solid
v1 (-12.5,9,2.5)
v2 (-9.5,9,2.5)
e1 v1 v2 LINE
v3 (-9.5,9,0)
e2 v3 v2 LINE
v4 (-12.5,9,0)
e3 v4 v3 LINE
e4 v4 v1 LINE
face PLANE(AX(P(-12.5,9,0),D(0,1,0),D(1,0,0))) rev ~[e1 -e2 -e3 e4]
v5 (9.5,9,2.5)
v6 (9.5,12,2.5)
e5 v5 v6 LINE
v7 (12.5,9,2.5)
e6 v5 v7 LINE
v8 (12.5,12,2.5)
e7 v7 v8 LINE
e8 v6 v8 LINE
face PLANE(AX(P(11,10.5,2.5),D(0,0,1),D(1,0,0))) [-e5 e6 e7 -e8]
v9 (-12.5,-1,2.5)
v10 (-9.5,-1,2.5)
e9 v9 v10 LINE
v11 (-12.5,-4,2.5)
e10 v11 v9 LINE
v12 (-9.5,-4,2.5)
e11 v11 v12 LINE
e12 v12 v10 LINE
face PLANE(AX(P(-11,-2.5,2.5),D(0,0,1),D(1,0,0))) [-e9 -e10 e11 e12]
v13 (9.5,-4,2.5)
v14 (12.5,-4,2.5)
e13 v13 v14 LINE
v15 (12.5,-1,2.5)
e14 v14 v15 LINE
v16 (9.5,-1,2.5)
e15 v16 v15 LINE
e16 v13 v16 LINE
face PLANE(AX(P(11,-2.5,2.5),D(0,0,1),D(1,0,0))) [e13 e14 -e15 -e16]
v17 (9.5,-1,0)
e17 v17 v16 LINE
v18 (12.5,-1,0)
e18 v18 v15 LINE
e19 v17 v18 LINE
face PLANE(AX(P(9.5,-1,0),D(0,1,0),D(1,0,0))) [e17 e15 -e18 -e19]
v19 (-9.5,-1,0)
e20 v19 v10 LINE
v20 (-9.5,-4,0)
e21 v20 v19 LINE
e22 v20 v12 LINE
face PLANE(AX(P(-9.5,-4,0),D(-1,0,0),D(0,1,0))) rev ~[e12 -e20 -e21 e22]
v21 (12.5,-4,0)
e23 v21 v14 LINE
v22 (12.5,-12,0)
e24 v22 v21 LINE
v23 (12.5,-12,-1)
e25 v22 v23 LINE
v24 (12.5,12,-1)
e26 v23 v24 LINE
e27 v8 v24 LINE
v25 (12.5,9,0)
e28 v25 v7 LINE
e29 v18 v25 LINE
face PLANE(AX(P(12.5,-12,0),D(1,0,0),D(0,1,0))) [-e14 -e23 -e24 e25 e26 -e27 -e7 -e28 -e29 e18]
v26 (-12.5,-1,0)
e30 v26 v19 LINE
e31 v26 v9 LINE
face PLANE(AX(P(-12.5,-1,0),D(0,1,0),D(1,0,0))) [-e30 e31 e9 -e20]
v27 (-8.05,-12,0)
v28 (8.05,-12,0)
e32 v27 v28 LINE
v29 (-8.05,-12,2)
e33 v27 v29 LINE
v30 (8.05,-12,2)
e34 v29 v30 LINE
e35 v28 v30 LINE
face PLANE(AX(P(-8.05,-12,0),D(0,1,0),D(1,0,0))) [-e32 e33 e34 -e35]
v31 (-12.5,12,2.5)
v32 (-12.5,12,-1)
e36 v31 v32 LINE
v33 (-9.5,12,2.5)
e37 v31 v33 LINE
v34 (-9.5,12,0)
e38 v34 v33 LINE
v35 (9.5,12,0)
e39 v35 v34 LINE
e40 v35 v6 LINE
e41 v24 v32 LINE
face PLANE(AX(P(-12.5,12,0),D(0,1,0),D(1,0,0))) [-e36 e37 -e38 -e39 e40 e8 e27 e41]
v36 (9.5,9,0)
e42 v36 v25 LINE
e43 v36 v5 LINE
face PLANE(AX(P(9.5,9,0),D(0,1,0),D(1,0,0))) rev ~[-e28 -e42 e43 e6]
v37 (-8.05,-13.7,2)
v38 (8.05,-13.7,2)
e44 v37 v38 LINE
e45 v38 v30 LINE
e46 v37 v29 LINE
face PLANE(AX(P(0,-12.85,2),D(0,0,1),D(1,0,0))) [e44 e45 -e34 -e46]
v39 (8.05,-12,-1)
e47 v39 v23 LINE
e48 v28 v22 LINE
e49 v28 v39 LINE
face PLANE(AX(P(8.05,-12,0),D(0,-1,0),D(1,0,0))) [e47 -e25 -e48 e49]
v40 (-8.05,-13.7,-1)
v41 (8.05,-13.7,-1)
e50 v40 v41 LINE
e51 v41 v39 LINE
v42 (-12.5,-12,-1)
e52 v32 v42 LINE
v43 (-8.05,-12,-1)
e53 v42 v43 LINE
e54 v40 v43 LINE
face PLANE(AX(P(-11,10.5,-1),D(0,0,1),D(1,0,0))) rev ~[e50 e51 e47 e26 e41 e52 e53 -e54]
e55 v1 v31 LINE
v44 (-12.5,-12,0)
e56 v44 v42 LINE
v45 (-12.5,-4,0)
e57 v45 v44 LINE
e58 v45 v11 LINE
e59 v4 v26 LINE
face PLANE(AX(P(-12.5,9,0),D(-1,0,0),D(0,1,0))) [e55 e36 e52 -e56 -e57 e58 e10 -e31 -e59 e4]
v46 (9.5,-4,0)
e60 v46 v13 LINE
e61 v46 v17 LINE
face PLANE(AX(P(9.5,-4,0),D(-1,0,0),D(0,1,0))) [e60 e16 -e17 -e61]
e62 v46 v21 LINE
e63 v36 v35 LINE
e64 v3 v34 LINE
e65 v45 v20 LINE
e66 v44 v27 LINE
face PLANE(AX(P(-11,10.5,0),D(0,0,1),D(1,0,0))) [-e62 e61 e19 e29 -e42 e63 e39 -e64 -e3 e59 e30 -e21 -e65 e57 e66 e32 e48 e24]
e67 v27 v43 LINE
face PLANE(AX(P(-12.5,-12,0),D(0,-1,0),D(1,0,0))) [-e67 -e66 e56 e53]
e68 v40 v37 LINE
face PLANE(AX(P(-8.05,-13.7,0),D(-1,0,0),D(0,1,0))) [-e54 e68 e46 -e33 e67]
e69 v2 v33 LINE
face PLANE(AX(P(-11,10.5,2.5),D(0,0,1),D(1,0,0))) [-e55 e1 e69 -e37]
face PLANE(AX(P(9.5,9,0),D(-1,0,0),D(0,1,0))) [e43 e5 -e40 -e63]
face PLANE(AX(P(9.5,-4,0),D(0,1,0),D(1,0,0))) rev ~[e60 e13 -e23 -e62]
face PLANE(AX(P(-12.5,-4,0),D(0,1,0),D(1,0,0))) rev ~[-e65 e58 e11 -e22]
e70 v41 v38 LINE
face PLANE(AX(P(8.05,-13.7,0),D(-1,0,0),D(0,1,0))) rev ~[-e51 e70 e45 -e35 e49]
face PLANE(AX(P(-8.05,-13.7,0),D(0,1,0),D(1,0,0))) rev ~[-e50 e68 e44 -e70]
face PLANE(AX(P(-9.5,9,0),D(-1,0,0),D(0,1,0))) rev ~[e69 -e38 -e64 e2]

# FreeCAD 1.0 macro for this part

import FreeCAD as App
import Part
import Sketcher

doc = App.newDocument("Part")
params = doc.addObject("Spreadsheet::Sheet", "Params")
for row, (alias, value) in enumerate([
    ("sketch1_width", "25 mm"),
    ("sketch1_height", "24 mm"),
    ("sketch1_width2", "16.1 mm"),
    ("sketch1_height2", "1.7 mm"),
    ("pad1_length", "1 mm"),
    ("sketch2_width", "3 mm"),
    ("pad2_length", "2.5 mm"),
    ("sketch3_width", "16.1 mm"),
    ("sketch3_height", "1.7 mm"),
    ("pad3_length", "2 mm"),
], start=1):
    params.set(f"A{row}", alias)
    params.set(f"B{row}", "=" + value)
    params.setAlias(f"B{row}", alias)

body = doc.addObject("PartDesign::Body", "Body")

sketch1 = body.newObject("Sketcher::SketchObject", "Sketch")
sketch1.AttachmentSupport = (doc.getObject("XY_Plane"), [""])
sketch1.MapMode = "FlatFace"
sketch1.addGeometry(Part.LineSegment(App.Vector(-12.5, 12, 0), App.Vector(-12.5, -12, 0)), False)
sketch1.addGeometry(Part.LineSegment(App.Vector(-12.5, -12, 0), App.Vector(-8.05, -12, 0)), False)
sketch1.addGeometry(Part.LineSegment(App.Vector(-8.05, -12, 0), App.Vector(-8.05, -13.7, 0)), False)
sketch1.addGeometry(Part.LineSegment(App.Vector(-8.05, -13.7, 0), App.Vector(8.05, -13.7, 0)), False)
sketch1.addGeometry(Part.LineSegment(App.Vector(8.05, -13.7, 0), App.Vector(8.05, -12, 0)), False)
sketch1.addGeometry(Part.LineSegment(App.Vector(8.05, -12, 0), App.Vector(12.5, -12, 0)), False)
sketch1.addGeometry(Part.LineSegment(App.Vector(12.5, -12, 0), App.Vector(12.5, 12, 0)), False)
sketch1.addGeometry(Part.LineSegment(App.Vector(12.5, 12, 0), App.Vector(-12.5, 12, 0)), False)
sketch1.addConstraint(Sketcher.Constraint("Coincident", 0, 2, 1, 1))
sketch1.addConstraint(Sketcher.Constraint("Coincident", 1, 2, 2, 1))
sketch1.addConstraint(Sketcher.Constraint("Coincident", 2, 2, 3, 1))
sketch1.addConstraint(Sketcher.Constraint("Coincident", 3, 2, 4, 1))
sketch1.addConstraint(Sketcher.Constraint("Coincident", 4, 2, 5, 1))
sketch1.addConstraint(Sketcher.Constraint("Coincident", 5, 2, 6, 1))
sketch1.addConstraint(Sketcher.Constraint("Coincident", 6, 2, 7, 1))
sketch1.addConstraint(Sketcher.Constraint("Coincident", 7, 2, 0, 1))
sketch1.addConstraint(Sketcher.Constraint("Vertical", 0))
sketch1.addConstraint(Sketcher.Constraint("Horizontal", 1))
sketch1.addConstraint(Sketcher.Constraint("Vertical", 2))
sketch1.addConstraint(Sketcher.Constraint("Horizontal", 3))
sketch1.addConstraint(Sketcher.Constraint("Vertical", 4))
sketch1.addConstraint(Sketcher.Constraint("Horizontal", 5))
sketch1.addConstraint(Sketcher.Constraint("Vertical", 6))
sketch1.addConstraint(Sketcher.Constraint("Horizontal", 7))
sketch1.addConstraint(Sketcher.Constraint("Symmetric", 0, 2, 6, 2, -1, 1))
sketch1.addConstraint(Sketcher.Constraint("Symmetric", 1, 2, 4, 2, -2))
sketch1.addConstraint(Sketcher.Constraint("DistanceX", 7, 2, 7, 1, 25.0))
sketch1.addConstraint(Sketcher.Constraint("DistanceY", 0, 2, 0, 1, 24.0))
sketch1.addConstraint(Sketcher.Constraint("DistanceX", 3, 1, 3, 2, 16.1))
sketch1.addConstraint(Sketcher.Constraint("DistanceY", 2, 2, 2, 1, 1.7))
sketch1.setExpression("Constraints[18]", "Params.sketch1_width")
sketch1.setExpression("Constraints[19]", "Params.sketch1_height")
sketch1.setExpression("Constraints[20]", "Params.sketch1_width2")
sketch1.setExpression("Constraints[21]", "Params.sketch1_height2")
pad1 = body.newObject("PartDesign::Pad", "Pad")
pad1.Profile = sketch1
pad1.setExpression("Length", "Params.pad1_length")
pad1.Reversed = True

sketch2 = body.newObject("Sketcher::SketchObject", "Sketch001")
sketch2.AttachmentSupport = (doc.getObject("XY_Plane"), [""])
sketch2.MapMode = "FlatFace"
sketch2.addGeometry(Part.LineSegment(App.Vector(-12.5, 12, 0), App.Vector(-12.5, 9, 0)), False)
sketch2.addGeometry(Part.LineSegment(App.Vector(-12.5, 9, 0), App.Vector(-9.5, 9, 0)), False)
sketch2.addGeometry(Part.LineSegment(App.Vector(-9.5, 9, 0), App.Vector(-9.5, 12, 0)), False)
sketch2.addGeometry(Part.LineSegment(App.Vector(-9.5, 12, 0), App.Vector(-12.5, 12, 0)), False)
sketch2.addGeometry(Part.LineSegment(App.Vector(9.5, 12, 0), App.Vector(9.5, 9, 0)), False)
sketch2.addGeometry(Part.LineSegment(App.Vector(9.5, 9, 0), App.Vector(12.5, 9, 0)), False)
sketch2.addGeometry(Part.LineSegment(App.Vector(12.5, 9, 0), App.Vector(12.5, 12, 0)), False)
sketch2.addGeometry(Part.LineSegment(App.Vector(12.5, 12, 0), App.Vector(9.5, 12, 0)), False)
sketch2.addGeometry(Part.LineSegment(App.Vector(-12.5, -1, 0), App.Vector(-12.5, -4, 0)), False)
sketch2.addGeometry(Part.LineSegment(App.Vector(-12.5, -4, 0), App.Vector(-9.5, -4, 0)), False)
sketch2.addGeometry(Part.LineSegment(App.Vector(-9.5, -4, 0), App.Vector(-9.5, -1, 0)), False)
sketch2.addGeometry(Part.LineSegment(App.Vector(-9.5, -1, 0), App.Vector(-12.5, -1, 0)), False)
sketch2.addGeometry(Part.LineSegment(App.Vector(9.5, -1, 0), App.Vector(9.5, -4, 0)), False)
sketch2.addGeometry(Part.LineSegment(App.Vector(9.5, -4, 0), App.Vector(12.5, -4, 0)), False)
sketch2.addGeometry(Part.LineSegment(App.Vector(12.5, -4, 0), App.Vector(12.5, -1, 0)), False)
sketch2.addGeometry(Part.LineSegment(App.Vector(12.5, -1, 0), App.Vector(9.5, -1, 0)), False)
sketch2.addConstraint(Sketcher.Constraint("Coincident", 0, 2, 1, 1))
sketch2.addConstraint(Sketcher.Constraint("Coincident", 1, 2, 2, 1))
sketch2.addConstraint(Sketcher.Constraint("Coincident", 2, 2, 3, 1))
sketch2.addConstraint(Sketcher.Constraint("Coincident", 3, 2, 0, 1))
sketch2.addConstraint(Sketcher.Constraint("Coincident", 4, 2, 5, 1))
sketch2.addConstraint(Sketcher.Constraint("Coincident", 5, 2, 6, 1))
sketch2.addConstraint(Sketcher.Constraint("Coincident", 6, 2, 7, 1))
sketch2.addConstraint(Sketcher.Constraint("Coincident", 7, 2, 4, 1))
sketch2.addConstraint(Sketcher.Constraint("Coincident", 8, 2, 9, 1))
sketch2.addConstraint(Sketcher.Constraint("Coincident", 9, 2, 10, 1))
sketch2.addConstraint(Sketcher.Constraint("Coincident", 10, 2, 11, 1))
sketch2.addConstraint(Sketcher.Constraint("Coincident", 11, 2, 8, 1))
sketch2.addConstraint(Sketcher.Constraint("Coincident", 12, 2, 13, 1))
sketch2.addConstraint(Sketcher.Constraint("Coincident", 13, 2, 14, 1))
sketch2.addConstraint(Sketcher.Constraint("Coincident", 14, 2, 15, 1))
sketch2.addConstraint(Sketcher.Constraint("Coincident", 15, 2, 12, 1))
sketch2.addConstraint(Sketcher.Constraint("Vertical", 0))
sketch2.addConstraint(Sketcher.Constraint("Horizontal", 1))
sketch2.addConstraint(Sketcher.Constraint("Vertical", 2))
sketch2.addConstraint(Sketcher.Constraint("Horizontal", 3))
sketch2.addConstraint(Sketcher.Constraint("Vertical", 4))
sketch2.addConstraint(Sketcher.Constraint("Horizontal", 5))
sketch2.addConstraint(Sketcher.Constraint("Vertical", 6))
sketch2.addConstraint(Sketcher.Constraint("Horizontal", 7))
sketch2.addConstraint(Sketcher.Constraint("Vertical", 8))
sketch2.addConstraint(Sketcher.Constraint("Horizontal", 9))
sketch2.addConstraint(Sketcher.Constraint("Vertical", 10))
sketch2.addConstraint(Sketcher.Constraint("Horizontal", 11))
sketch2.addConstraint(Sketcher.Constraint("Vertical", 12))
sketch2.addConstraint(Sketcher.Constraint("Horizontal", 13))
sketch2.addConstraint(Sketcher.Constraint("Vertical", 14))
sketch2.addConstraint(Sketcher.Constraint("Horizontal", 15))
sketch2.addConstraint(Sketcher.Constraint("Symmetric", 1, 2, 4, 2, -2))
sketch2.addConstraint(Sketcher.Constraint("Symmetric", 3, 2, 6, 2, -2))
sketch2.addConstraint(Sketcher.Constraint("Symmetric", 9, 2, 12, 2, -2))
sketch2.addConstraint(Sketcher.Constraint("Symmetric", 11, 2, 14, 2, -2))
sketch2.addConstraint(Sketcher.Constraint("Vertical", 3, 2, 8, 2))
sketch2.addConstraint(Sketcher.Constraint("Vertical", 2, 2, 9, 2))
sketch2.addConstraint(Sketcher.Constraint("Equal", 15, 0))
sketch2.addConstraint(Sketcher.Constraint("Equal", 6, 8))
sketch2.addConstraint(Sketcher.Constraint("DistanceX", 1, 1, 1, 2, 3.0))
sketch2.addConstraint(Sketcher.Constraint("DistanceY", -1, 1, 0, 2, 9.0))
sketch2.addConstraint(Sketcher.Constraint("DistanceY", 8, 2, -1, 1, 4.0))
sketch2.addConstraint(Sketcher.Constraint("DistanceX", 1, 2, 4, 2, 19.0))
sketch2.setExpression("Constraints[40]", "Params.sketch2_width")
pad2 = body.newObject("PartDesign::Pad", "Pad001")
pad2.Profile = sketch2
pad2.setExpression("Length", "Params.pad2_length")

sketch3 = body.newObject("Sketcher::SketchObject", "Sketch002")
sketch3.AttachmentSupport = (doc.getObject("XY_Plane"), [""])
sketch3.MapMode = "FlatFace"
sketch3.addGeometry(Part.LineSegment(App.Vector(-8.05, -12, 0), App.Vector(-8.05, -13.7, 0)), False)
sketch3.addGeometry(Part.LineSegment(App.Vector(-8.05, -13.7, 0), App.Vector(8.05, -13.7, 0)), False)
sketch3.addGeometry(Part.LineSegment(App.Vector(8.05, -13.7, 0), App.Vector(8.05, -12, 0)), False)
sketch3.addGeometry(Part.LineSegment(App.Vector(8.05, -12, 0), App.Vector(-8.05, -12, 0)), False)
sketch3.addConstraint(Sketcher.Constraint("Coincident", 0, 2, 1, 1))
sketch3.addConstraint(Sketcher.Constraint("Coincident", 1, 2, 2, 1))
sketch3.addConstraint(Sketcher.Constraint("Coincident", 2, 2, 3, 1))
sketch3.addConstraint(Sketcher.Constraint("Coincident", 3, 2, 0, 1))
sketch3.addConstraint(Sketcher.Constraint("Vertical", 0))
sketch3.addConstraint(Sketcher.Constraint("Horizontal", 1))
sketch3.addConstraint(Sketcher.Constraint("Vertical", 2))
sketch3.addConstraint(Sketcher.Constraint("Horizontal", 3))
sketch3.addConstraint(Sketcher.Constraint("DistanceX", 1, 1, 1, 2, 16.1))
sketch3.addConstraint(Sketcher.Constraint("DistanceY", 0, 2, 0, 1, 1.7))
sketch3.addConstraint(Sketcher.Constraint("DistanceY", 2, 2, -1, 1, 12.0))
sketch3.addConstraint(Sketcher.Constraint("DistanceX", 0, 2, -1, 1, 8.05))
sketch3.setExpression("Constraints[8]", "Params.sketch3_width")
sketch3.setExpression("Constraints[9]", "Params.sketch3_height")
pad3 = body.newObject("PartDesign::Pad", "Pad002")
pad3.Profile = sketch3
pad3.setExpression("Length", "Params.pad3_length")

doc.recompute()
